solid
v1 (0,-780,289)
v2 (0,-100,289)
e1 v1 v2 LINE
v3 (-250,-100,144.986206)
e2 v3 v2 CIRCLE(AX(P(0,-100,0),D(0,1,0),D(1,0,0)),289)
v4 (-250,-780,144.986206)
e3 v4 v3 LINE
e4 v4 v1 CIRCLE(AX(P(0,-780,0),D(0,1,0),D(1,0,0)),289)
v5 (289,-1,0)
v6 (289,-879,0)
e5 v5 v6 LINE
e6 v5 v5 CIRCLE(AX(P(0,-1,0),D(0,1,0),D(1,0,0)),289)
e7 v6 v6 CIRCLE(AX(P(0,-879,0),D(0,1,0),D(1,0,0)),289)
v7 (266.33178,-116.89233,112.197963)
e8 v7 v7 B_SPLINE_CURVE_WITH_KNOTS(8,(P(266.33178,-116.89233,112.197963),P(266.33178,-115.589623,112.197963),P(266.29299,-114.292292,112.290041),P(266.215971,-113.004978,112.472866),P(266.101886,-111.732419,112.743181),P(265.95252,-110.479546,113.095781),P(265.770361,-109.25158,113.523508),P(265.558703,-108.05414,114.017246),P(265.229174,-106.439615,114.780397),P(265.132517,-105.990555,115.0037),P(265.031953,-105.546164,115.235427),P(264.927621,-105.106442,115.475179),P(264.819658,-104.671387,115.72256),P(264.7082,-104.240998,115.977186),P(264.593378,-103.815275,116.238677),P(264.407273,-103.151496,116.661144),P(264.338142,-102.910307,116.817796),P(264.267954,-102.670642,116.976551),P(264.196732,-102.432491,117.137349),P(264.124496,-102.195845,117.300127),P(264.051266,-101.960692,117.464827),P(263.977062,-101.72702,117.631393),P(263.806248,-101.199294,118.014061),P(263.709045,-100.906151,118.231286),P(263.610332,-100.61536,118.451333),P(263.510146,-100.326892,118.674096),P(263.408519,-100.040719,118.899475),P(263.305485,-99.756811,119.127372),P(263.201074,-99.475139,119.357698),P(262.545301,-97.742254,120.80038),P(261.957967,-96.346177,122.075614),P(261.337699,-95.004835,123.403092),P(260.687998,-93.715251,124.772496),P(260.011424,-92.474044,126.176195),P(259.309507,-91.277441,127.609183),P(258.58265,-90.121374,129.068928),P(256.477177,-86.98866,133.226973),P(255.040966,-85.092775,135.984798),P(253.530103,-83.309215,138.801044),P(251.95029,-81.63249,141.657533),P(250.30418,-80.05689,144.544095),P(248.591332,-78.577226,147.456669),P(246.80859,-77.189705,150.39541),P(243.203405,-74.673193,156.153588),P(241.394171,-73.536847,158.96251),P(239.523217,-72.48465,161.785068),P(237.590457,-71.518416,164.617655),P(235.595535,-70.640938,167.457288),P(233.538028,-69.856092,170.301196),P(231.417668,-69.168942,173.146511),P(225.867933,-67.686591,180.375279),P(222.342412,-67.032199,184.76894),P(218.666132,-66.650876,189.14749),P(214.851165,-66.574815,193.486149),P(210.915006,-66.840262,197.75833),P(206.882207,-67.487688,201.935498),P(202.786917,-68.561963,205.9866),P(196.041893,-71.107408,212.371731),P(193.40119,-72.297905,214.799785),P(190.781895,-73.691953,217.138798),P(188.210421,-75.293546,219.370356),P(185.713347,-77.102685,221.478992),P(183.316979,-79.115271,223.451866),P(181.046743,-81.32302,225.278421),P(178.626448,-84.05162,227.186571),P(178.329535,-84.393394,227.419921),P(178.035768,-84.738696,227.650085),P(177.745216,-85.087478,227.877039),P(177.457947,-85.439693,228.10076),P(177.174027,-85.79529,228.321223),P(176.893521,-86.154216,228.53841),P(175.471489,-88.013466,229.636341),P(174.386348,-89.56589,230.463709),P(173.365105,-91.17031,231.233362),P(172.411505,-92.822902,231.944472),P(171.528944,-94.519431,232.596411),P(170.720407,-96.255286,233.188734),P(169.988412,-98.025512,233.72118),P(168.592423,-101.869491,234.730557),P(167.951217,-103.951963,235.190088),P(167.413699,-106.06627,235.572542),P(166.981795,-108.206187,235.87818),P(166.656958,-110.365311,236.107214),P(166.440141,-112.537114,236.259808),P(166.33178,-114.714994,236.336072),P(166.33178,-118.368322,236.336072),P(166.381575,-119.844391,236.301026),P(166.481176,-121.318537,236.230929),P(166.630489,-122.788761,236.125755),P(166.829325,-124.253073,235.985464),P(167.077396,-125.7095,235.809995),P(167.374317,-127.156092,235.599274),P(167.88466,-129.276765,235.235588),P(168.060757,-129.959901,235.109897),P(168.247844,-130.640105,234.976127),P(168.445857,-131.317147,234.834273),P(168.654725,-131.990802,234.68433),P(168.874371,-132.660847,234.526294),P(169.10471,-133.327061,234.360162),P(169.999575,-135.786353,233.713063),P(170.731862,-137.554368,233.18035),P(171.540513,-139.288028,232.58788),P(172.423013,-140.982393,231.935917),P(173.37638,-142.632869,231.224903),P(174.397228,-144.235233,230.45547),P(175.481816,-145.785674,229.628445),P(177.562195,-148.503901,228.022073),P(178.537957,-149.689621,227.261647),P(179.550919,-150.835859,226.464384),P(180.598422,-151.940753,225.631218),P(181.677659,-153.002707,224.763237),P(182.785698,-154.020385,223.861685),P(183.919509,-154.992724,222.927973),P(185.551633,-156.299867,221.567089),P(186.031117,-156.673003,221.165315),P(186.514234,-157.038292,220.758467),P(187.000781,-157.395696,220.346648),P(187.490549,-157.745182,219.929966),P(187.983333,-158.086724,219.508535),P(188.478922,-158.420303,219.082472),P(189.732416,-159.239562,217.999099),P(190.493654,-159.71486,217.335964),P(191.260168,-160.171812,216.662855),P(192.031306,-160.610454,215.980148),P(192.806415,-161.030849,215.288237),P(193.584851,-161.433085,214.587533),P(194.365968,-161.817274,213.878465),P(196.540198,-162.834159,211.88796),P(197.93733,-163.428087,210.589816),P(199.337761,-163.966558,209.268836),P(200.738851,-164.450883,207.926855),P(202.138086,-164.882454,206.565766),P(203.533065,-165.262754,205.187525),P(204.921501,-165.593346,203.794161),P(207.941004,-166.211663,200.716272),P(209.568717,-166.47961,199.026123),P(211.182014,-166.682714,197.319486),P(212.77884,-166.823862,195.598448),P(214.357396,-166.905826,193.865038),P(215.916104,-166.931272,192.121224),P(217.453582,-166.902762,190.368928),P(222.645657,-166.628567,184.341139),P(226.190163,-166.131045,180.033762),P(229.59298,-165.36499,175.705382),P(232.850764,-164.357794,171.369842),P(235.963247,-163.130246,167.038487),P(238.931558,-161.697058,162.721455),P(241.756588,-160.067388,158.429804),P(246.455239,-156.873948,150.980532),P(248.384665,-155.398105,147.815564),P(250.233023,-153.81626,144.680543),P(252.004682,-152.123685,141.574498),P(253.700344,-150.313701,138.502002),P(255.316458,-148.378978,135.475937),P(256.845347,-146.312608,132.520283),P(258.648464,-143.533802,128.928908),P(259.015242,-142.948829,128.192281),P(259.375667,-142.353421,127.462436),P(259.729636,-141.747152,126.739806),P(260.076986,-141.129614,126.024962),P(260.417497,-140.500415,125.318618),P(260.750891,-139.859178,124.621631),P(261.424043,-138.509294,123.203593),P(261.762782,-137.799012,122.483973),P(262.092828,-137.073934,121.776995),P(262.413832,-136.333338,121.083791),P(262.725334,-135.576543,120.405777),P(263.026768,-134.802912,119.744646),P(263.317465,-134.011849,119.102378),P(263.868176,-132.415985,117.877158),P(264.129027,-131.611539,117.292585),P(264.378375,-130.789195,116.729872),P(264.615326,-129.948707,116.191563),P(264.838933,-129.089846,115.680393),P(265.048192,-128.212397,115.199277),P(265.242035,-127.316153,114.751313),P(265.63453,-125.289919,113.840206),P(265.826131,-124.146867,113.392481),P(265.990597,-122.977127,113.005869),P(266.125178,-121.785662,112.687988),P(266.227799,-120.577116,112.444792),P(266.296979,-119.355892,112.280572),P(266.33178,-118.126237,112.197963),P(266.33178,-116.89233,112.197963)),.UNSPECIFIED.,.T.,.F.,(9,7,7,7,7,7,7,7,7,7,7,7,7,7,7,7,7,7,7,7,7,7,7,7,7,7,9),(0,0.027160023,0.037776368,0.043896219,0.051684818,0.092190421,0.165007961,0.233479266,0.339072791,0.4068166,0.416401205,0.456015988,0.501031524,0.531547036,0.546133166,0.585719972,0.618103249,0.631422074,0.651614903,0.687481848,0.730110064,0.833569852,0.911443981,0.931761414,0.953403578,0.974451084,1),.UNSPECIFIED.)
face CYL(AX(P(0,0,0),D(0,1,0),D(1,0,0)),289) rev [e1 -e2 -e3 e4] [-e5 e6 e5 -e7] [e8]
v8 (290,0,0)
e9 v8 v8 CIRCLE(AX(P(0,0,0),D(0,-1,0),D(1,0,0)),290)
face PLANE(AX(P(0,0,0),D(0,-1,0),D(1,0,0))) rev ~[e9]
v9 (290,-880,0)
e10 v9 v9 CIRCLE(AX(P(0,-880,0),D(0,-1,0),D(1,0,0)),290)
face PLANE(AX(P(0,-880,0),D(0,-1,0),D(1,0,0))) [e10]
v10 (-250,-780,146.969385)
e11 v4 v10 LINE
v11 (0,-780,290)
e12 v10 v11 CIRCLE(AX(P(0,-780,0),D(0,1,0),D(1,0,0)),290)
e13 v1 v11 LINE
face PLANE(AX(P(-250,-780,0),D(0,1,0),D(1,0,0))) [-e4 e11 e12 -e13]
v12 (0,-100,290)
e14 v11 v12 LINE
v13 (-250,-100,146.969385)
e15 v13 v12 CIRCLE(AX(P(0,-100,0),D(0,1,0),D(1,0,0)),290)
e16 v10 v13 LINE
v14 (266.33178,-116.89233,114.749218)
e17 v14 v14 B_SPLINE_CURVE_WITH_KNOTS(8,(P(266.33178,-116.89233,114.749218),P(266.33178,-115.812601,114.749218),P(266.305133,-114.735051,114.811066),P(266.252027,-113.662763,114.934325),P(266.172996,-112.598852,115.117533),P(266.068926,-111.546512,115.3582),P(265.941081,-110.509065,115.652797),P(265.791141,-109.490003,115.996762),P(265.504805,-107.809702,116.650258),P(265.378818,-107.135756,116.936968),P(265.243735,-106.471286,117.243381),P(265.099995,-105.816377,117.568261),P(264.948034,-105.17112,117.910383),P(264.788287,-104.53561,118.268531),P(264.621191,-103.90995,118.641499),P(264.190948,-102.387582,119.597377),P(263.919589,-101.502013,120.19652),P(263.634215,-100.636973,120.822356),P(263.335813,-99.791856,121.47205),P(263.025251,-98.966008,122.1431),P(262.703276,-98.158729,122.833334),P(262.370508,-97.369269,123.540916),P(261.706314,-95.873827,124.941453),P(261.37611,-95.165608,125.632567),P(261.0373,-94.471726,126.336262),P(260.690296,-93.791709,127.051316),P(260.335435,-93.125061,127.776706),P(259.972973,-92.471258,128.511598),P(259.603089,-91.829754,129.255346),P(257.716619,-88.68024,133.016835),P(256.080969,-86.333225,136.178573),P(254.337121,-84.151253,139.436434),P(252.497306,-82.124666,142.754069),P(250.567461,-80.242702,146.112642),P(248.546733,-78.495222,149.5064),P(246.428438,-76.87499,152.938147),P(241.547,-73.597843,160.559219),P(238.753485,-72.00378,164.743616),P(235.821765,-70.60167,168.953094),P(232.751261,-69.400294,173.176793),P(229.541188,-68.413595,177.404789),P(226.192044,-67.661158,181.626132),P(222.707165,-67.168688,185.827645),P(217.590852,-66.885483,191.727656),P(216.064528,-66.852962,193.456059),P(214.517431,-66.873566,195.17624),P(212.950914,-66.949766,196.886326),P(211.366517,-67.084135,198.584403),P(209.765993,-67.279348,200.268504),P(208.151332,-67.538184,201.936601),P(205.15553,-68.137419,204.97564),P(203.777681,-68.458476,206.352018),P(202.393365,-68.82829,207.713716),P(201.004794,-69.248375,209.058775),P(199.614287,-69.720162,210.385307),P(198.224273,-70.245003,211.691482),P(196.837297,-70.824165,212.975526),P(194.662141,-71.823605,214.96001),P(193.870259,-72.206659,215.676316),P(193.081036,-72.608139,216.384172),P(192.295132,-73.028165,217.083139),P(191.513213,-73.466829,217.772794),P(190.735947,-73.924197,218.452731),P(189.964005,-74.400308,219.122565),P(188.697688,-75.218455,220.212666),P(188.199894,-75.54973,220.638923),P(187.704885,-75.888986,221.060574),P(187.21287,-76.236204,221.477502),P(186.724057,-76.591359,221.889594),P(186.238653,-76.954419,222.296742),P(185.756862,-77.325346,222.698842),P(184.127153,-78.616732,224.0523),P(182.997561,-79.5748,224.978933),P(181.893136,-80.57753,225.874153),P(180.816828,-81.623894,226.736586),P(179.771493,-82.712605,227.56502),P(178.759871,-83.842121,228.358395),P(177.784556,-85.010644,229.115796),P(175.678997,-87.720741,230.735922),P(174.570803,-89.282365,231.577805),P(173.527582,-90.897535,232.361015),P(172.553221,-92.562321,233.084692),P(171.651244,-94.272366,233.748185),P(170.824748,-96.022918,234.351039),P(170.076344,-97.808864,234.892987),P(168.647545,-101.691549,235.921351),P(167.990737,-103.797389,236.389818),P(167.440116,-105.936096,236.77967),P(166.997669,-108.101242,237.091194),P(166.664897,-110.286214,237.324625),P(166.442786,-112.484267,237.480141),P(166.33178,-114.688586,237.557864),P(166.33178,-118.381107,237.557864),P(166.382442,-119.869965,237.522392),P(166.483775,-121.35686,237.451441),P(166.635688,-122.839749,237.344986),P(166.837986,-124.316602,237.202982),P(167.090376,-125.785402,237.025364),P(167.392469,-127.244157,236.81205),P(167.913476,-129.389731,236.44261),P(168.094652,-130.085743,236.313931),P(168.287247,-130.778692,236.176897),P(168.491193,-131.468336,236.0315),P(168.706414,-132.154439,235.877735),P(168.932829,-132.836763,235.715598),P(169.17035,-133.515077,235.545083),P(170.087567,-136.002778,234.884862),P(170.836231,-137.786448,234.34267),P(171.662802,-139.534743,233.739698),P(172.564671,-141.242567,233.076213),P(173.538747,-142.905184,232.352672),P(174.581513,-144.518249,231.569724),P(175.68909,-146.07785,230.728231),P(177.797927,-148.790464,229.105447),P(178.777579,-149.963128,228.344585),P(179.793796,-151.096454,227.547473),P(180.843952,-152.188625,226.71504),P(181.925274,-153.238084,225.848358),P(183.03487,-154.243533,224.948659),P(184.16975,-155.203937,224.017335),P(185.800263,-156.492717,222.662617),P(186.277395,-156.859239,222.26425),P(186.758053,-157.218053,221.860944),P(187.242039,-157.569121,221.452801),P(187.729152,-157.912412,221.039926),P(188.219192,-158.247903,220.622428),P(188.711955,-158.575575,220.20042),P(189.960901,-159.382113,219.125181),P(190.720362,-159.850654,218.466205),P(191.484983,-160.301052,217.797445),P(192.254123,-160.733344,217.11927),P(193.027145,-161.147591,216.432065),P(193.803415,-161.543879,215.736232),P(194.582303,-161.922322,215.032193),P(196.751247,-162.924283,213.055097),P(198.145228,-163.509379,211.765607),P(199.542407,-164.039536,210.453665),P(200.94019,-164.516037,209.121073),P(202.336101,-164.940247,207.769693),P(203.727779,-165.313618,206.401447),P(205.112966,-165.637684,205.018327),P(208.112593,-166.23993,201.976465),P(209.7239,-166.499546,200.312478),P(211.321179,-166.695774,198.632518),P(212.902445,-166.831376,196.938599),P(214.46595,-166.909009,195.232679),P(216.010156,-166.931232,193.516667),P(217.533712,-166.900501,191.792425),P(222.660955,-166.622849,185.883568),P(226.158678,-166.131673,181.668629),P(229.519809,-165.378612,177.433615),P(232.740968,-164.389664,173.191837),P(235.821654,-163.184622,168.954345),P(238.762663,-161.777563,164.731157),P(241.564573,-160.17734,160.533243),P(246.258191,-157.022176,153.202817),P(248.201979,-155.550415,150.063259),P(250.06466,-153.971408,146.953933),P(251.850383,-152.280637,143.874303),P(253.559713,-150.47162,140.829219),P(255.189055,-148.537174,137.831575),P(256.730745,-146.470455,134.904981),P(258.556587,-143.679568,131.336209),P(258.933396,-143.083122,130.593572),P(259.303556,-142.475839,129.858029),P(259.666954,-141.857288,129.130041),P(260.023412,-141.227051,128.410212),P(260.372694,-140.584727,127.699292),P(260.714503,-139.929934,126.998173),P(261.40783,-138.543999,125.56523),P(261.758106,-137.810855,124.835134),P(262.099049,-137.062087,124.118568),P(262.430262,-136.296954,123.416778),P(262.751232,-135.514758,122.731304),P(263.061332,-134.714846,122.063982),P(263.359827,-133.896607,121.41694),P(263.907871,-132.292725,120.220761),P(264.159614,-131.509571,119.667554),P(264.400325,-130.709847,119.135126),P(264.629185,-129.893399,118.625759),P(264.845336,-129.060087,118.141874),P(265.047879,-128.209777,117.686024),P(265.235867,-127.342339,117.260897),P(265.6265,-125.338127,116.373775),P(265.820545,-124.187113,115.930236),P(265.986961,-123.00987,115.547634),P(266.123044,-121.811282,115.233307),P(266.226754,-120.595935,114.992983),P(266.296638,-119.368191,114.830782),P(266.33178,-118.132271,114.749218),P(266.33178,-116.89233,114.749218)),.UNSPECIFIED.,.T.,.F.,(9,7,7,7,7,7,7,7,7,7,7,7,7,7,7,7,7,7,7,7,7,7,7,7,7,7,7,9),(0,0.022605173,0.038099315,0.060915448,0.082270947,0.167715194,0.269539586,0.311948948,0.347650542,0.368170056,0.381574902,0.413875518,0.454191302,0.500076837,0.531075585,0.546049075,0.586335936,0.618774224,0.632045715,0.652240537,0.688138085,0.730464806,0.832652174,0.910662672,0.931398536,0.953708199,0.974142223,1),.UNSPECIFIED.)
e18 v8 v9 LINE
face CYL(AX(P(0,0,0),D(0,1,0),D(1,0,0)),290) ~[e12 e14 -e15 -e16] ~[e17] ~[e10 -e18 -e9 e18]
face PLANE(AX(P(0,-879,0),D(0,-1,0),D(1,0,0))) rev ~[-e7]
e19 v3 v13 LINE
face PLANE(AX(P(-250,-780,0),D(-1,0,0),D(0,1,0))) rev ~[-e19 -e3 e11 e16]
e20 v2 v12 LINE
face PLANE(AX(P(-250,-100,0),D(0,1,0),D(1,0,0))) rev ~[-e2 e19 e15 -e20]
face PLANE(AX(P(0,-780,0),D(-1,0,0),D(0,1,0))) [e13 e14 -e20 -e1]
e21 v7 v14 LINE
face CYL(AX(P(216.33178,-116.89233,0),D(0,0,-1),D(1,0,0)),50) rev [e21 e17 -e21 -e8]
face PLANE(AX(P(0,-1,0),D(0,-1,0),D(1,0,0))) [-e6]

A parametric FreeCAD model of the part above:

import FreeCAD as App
import Part
import Sketcher


def faces_at(feature, points):
    """Names of the faces that lie closest to the given points."""
    faces = feature.Shape.Faces
    near = lambda p: min(range(len(faces)), key=lambda i: faces[i].distToShape(Part.Vertex(*p))[0])
    return sorted({f"Face{near(p) + 1}" for p in points})


def add_polygon(sketch, points):
    """Adds a closed chain of lines whose ends are joined by coincident constraints."""
    first, n = sketch.GeometryCount, len(points)
    for a, b in zip(points, points[1:] + points[:1]):
        sketch.addGeometry(Part.LineSegment(App.Vector(*a, 0), App.Vector(*b, 0)), False)
    for i in range(n):
        sketch.addConstraint(Sketcher.Constraint("Coincident", first + i, 2, first + (i + 1) % n, 1))

doc = App.newDocument("Part")
body = doc.addObject("PartDesign::Body", "Body")

sketch1 = body.newObject("Sketcher::SketchObject", "Sketch")
sketch1.AttachmentSupport = (doc.getObject("XZ_Plane"), [""])
sketch1.MapMode = "FlatFace"
sketch1.addGeometry(Part.Circle(App.Vector(0, 0, 0), App.Vector(0, 0, 1), 290), False)
sketch1.addConstraint(Sketcher.Constraint("Coincident", 0, 3, -1, 1))
sketch1.addConstraint(Sketcher.Constraint("Diameter", 0, 580.0))
pad1 = body.newObject("PartDesign::Pad", "Pad")
pad1.Profile = sketch1
pad1.Length = 880

sketch2 = body.newObject("Sketcher::SketchObject", "Sketch001")
sketch2.AttachmentSupport = (doc.getObject("XY_Plane"), [""])
sketch2.MapMode = "FlatFace"
add_polygon(sketch2, [(-250, -100), (-250, -780), (0, -780), (0, -100)])
sketch2.addConstraint(Sketcher.Constraint("Vertical", 0))
sketch2.addConstraint(Sketcher.Constraint("Horizontal", 1))
sketch2.addConstraint(Sketcher.Constraint("Vertical", 2))
sketch2.addConstraint(Sketcher.Constraint("Horizontal", 3))
sketch2.addConstraint(Sketcher.Constraint("PointOnObject", 1, 2, -2))
sketch2.addConstraint(Sketcher.Constraint("DistanceX", 1, 1, 1, 2, 250.0))
sketch2.addConstraint(Sketcher.Constraint("DistanceY", 0, 2, 0, 1, 680.0))
sketch2.addConstraint(Sketcher.Constraint("DistanceY", 0, 2, -1, 1, 780.0))
pocket1 = body.newObject("PartDesign::Pocket", "Pocket")
pocket1.Profile = sketch2
pocket1.Length = 566
pocket1.Reversed = True
doc.recompute()

thickness = body.newObject("PartDesign::Thickness", "Thickness")
thickness.Base = (pocket1, faces_at(pocket1, [
    (0, -440, 145),
    (-250, -440, 73.485),
    (-125, -440, 0),
    (-125, -780, 145),
    (-125, -100, 145),
]))
thickness.Value = 1
thickness.Reversed = True
thickness.Join = "Arc"

sketch3 = body.newObject("Sketcher::SketchObject", "Sketch002")
sketch3.AttachmentSupport = (doc.getObject("XY_Plane"), [""])
sketch3.MapMode = "FlatFace"
sketch3.addGeometry(Part.Circle(App.Vector(216.33178, -116.89233, 0), App.Vector(0, 0, 1), 50), False)
sketch3.addConstraint(Sketcher.Constraint("Diameter", 0, 100.0))
sketch3.addConstraint(Sketcher.Constraint("DistanceX", -1, 1, 0, 3, 216.33178))
sketch3.addConstraint(Sketcher.Constraint("DistanceY", 0, 3, -1, 1, 116.89233))
pocket2 = body.newObject("PartDesign::Pocket", "Pocket001")
pocket2.Profile = sketch3
pocket2.Length = 314
pocket2.Reversed = True

doc.recompute()
